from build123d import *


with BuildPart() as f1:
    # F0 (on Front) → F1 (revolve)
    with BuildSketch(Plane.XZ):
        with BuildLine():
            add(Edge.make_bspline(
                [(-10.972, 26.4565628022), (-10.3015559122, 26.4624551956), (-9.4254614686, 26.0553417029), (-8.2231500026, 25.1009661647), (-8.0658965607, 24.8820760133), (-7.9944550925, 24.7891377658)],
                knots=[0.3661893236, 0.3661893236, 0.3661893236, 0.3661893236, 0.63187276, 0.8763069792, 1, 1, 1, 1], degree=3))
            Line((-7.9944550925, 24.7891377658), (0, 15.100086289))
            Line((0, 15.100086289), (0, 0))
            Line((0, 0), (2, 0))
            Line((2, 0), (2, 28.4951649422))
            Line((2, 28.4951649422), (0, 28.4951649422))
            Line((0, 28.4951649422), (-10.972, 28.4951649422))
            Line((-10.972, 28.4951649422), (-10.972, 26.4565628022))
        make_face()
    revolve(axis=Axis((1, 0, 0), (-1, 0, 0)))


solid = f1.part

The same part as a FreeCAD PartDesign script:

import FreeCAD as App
import Part
import Sketcher

doc = App.newDocument("Part")
params = doc.addObject("Spreadsheet::Sheet", "Params")
for row, (alias, value) in enumerate([
    ("sketch1_width", "2 mm"),
    ("revolution_angle", "360 deg"),
], start=1):
    params.set(f"A{row}", alias)
    params.set(f"B{row}", "=" + value)
    params.setAlias(f"B{row}", alias)

body = doc.addObject("PartDesign::Body", "Body")

# Sketch on XZ plane
sketch1 = doc.addObject("Sketcher::SketchObject", "Sketch")
body.addObject(sketch1)
sketch1.AttachmentSupport = (doc.XZ_Plane, [""])
sketch1.MapMode = "FlatFace"
sketch1.addGeometry(Part.BSplineCurve([App.Vector(-10.972, 26.456563, 0), App.Vector(-10.301556, 26.462455, 0), App.Vector(-9.425461, 26.055342, 0), App.Vector(-8.22315, 25.100966, 0), App.Vector(-8.065897, 24.882076, 0), App.Vector(-7.994455, 24.789138, 0)], [4, 1, 1, 4], [0.366189324, 0.63187276, 0.876306979, 1], False, 3, [1, 1, 1, 1, 1, 1], False), False)
sketch1.addGeometry(Part.LineSegment(App.Vector(-7.994455, 24.789138, 0), App.Vector(0, 15.100086, 0)), False)
sketch1.addGeometry(Part.LineSegment(App.Vector(0, 15.100086, 0), App.Vector(0, 0, 0)), False)
sketch1.addGeometry(Part.LineSegment(App.Vector(0, 0, 0), App.Vector(2, 0, 0)), False)
sketch1.addGeometry(Part.LineSegment(App.Vector(2, 0, 0), App.Vector(2, 28.495165, 0)), False)
sketch1.addGeometry(Part.LineSegment(App.Vector(2, 28.495165, 0), App.Vector(-10.972, 28.495165, 0)), False)
sketch1.addGeometry(Part.LineSegment(App.Vector(-10.972, 28.495165, 0), App.Vector(-10.972, 26.456563, 0)), False)
sketch1.addConstraint(Sketcher.Constraint("Block", 0))
sketch1.addConstraint(Sketcher.Constraint("Coincident", 0, 2, 1, 1))
sketch1.addConstraint(Sketcher.Constraint("Coincident", 1, 2, 2, 1))
sketch1.addConstraint(Sketcher.Constraint("Coincident", 2, 2, 3, 1))
sketch1.addConstraint(Sketcher.Constraint("Coincident", 3, 2, 4, 1))
sketch1.addConstraint(Sketcher.Constraint("Coincident", 4, 2, 5, 1))
sketch1.addConstraint(Sketcher.Constraint("Coincident", 5, 2, 6, 1))
sketch1.addConstraint(Sketcher.Constraint("Coincident", 6, 2, 0, 1))
sketch1.addConstraint(Sketcher.Constraint("Vertical", 2))
sketch1.addConstraint(Sketcher.Constraint("Horizontal", 3))
sketch1.addConstraint(Sketcher.Constraint("Vertical", 4))
sketch1.addConstraint(Sketcher.Constraint("Horizontal", 5))
sketch1.addConstraint(Sketcher.Constraint("Vertical", 6))
sketch1.addConstraint(Sketcher.Constraint("Coincident", 2, 2, -1, 1))
sketch1.addConstraint(Sketcher.Constraint("DistanceX", 3, 1, 3, 2, 2.0))
sketch1.addConstraint(Sketcher.Constraint("Distance", 1, 12.56141))
sketch1.addConstraint(Sketcher.Constraint("DistanceY", 4, 1, 4, 2, 28.495165))
sketch1.setExpression("Constraints[14]", "Params.sketch1_width")
revolution = doc.addObject("PartDesign::Revolution", "Revolution")
body.addObject(revolution)
revolution.Profile = sketch1
revolution.ReferenceAxis = (sketch1, ["H_Axis"])
revolution.setExpression("Angle", "Params.revolution_angle")

doc.recompute()
